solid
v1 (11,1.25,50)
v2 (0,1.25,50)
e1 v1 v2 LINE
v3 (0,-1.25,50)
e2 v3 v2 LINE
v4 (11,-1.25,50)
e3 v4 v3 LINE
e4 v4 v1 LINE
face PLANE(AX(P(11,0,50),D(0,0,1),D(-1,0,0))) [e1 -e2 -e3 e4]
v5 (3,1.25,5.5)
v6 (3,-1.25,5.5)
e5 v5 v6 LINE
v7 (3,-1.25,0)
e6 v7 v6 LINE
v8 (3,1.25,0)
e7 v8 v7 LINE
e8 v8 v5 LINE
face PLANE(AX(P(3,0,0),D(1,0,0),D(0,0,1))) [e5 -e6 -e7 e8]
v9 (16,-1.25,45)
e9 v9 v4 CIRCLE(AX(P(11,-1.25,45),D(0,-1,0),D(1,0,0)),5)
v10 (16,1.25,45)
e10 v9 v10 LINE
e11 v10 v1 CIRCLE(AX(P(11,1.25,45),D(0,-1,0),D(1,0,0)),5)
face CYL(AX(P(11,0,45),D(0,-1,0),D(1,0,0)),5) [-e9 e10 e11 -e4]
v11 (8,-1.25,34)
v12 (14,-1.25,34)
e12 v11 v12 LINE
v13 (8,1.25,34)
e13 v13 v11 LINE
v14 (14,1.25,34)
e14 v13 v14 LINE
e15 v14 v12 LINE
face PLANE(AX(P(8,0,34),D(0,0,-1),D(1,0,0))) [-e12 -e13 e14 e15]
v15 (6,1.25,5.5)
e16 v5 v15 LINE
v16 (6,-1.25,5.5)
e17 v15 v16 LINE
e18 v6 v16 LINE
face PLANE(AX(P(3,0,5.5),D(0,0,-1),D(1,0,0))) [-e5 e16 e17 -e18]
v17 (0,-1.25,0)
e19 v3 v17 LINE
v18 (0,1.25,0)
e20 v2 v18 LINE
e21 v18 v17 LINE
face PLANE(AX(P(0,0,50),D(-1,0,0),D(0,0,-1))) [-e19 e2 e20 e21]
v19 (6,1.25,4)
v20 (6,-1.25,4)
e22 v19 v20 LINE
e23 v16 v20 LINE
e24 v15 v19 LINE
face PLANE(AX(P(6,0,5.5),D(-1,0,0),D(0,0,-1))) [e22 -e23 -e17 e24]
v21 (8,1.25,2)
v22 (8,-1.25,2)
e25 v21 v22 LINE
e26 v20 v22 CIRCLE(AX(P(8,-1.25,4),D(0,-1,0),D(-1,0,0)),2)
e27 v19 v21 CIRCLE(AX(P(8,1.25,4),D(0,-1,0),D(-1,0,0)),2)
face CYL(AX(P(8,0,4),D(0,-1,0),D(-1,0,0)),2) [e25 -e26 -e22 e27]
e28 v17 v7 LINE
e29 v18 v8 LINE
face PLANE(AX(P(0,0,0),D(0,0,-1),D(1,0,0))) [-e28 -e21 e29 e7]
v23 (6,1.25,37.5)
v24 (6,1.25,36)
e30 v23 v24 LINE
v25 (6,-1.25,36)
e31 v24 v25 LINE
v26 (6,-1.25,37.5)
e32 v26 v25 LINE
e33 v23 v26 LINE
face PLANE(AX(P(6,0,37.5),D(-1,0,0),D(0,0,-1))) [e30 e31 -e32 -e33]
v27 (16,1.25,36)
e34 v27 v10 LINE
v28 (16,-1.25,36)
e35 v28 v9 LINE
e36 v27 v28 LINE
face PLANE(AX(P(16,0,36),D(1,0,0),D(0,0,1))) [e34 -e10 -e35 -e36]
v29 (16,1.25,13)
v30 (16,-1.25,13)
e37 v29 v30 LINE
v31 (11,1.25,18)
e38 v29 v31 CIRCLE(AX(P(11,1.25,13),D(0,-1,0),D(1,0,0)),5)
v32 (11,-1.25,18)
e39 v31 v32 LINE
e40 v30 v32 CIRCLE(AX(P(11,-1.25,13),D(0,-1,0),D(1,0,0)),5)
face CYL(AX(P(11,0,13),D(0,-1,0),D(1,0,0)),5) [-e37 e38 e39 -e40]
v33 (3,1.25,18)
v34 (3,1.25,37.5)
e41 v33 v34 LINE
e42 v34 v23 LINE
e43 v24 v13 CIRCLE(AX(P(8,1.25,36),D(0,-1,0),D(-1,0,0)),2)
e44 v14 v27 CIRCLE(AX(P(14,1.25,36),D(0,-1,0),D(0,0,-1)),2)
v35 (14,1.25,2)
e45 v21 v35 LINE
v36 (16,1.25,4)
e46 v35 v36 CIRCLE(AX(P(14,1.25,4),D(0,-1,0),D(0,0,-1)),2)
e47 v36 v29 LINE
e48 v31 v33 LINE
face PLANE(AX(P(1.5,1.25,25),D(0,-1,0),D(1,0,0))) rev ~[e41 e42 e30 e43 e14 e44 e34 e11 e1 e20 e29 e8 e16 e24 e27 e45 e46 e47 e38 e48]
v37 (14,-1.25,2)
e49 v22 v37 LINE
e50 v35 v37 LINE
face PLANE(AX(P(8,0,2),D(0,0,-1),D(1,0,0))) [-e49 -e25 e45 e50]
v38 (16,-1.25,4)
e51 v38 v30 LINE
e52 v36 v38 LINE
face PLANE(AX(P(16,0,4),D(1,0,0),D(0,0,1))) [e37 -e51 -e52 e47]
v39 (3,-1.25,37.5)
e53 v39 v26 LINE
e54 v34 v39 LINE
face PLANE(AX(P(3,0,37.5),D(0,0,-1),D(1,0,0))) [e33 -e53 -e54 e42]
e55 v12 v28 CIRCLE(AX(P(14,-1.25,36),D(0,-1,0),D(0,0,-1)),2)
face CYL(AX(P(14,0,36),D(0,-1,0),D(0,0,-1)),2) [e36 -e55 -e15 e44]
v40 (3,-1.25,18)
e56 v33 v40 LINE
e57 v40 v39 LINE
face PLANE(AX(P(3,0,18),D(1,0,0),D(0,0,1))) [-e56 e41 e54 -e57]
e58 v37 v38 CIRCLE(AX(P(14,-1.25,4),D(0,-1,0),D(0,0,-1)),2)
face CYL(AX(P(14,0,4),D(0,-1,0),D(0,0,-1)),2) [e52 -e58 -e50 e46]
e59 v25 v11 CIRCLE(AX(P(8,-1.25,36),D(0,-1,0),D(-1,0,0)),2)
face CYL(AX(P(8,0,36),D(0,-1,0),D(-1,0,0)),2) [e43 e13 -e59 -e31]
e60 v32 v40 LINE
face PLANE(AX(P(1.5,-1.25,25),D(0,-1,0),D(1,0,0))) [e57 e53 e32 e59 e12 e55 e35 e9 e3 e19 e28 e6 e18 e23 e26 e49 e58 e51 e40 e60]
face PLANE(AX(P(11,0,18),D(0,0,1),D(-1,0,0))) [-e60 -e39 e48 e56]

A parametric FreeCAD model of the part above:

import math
import FreeCAD as App
import Part
import Sketcher

V = App.Vector

doc = App.newDocument("Part")
body = doc.addObject("PartDesign::Body", "Body")

# Sketch on XZ plane
sketch1 = doc.addObject("Sketcher::SketchObject", "Sketch")
body.addObject(sketch1)
sketch1.AttachmentSupport = (doc.XZ_Plane, [""])
sketch1.MapMode = "FlatFace"
sketch1.addGeometry([
    Part.LineSegment(V(0, 50, 0), V(0, 0, 0)),  # 0
    Part.LineSegment(V(0, 0, 0), V(3, 0, 0)),  # 1
    Part.LineSegment(V(3, 0, 0), V(3, 5.5, 0)),  # 2
    Part.LineSegment(V(3, 5.5, 0), V(6, 5.5, 0)),  # 3
    Part.LineSegment(V(6, 5.5, 0), V(6, 4, 0)),  # 4
    Part.ArcOfCircle(Part.Circle(V(8, 4, 0), V(0, 0, 1), 2), math.radians(180), math.radians(270)),  # 5
    Part.LineSegment(V(8, 2, 0), V(14, 2, 0)),  # 6
    Part.ArcOfCircle(Part.Circle(V(14, 4, 0), V(0, 0, 1), 2), math.radians(-90), math.radians(0)),  # 7
    Part.LineSegment(V(16, 4, 0), V(16, 13, 0)),  # 8
    Part.ArcOfCircle(Part.Circle(V(11, 13, 0), V(0, 0, 1), 5), math.radians(0), math.radians(90)),  # 9
    Part.LineSegment(V(11, 18, 0), V(3, 18, 0)),  # 10
    Part.LineSegment(V(3, 18, 0), V(3, 37.5, 0)),  # 11
    Part.LineSegment(V(3, 37.5, 0), V(6, 37.5, 0)),  # 12
    Part.LineSegment(V(6, 37.5, 0), V(6, 36, 0)),  # 13
    Part.ArcOfCircle(Part.Circle(V(8, 36, 0), V(0, 0, 1), 2), math.radians(180), math.radians(270)),  # 14
    Part.LineSegment(V(8, 34, 0), V(14, 34, 0)),  # 15
    Part.ArcOfCircle(Part.Circle(V(14, 36, 0), V(0, 0, 1), 2), math.radians(-90), math.radians(0)),  # 16
    Part.LineSegment(V(16, 36, 0), V(16, 45, 0)),  # 17
    Part.ArcOfCircle(Part.Circle(V(11, 45, 0), V(0, 0, 1), 5), math.radians(0), math.radians(90)),  # 18
    Part.LineSegment(V(11, 50, 0), V(0, 50, 0)),  # 19
], False)
sketch1.addConstraint([
    Sketcher.Constraint("Coincident", 0, 2, 1, 1),
    Sketcher.Constraint("Coincident", 1, 2, 2, 1),
    Sketcher.Constraint("Coincident", 2, 2, 3, 1),
    Sketcher.Constraint("Coincident", 3, 2, 4, 1),
    Sketcher.Constraint("Tangent", 4, 2, 5, 1),
    Sketcher.Constraint("Tangent", 5, 2, 6, 1),
    Sketcher.Constraint("Tangent", 6, 2, 7, 1),
    Sketcher.Constraint("Tangent", 7, 2, 8, 1),
    Sketcher.Constraint("Tangent", 8, 2, 9, 1),
    Sketcher.Constraint("Tangent", 9, 2, 10, 1),
    Sketcher.Constraint("Coincident", 10, 2, 11, 1),
    Sketcher.Constraint("Coincident", 11, 2, 12, 1),
    Sketcher.Constraint("Coincident", 12, 2, 13, 1),
    Sketcher.Constraint("Tangent", 13, 2, 14, 1),
    Sketcher.Constraint("Tangent", 14, 2, 15, 1),
    Sketcher.Constraint("Tangent", 15, 2, 16, 1),
    Sketcher.Constraint("Tangent", 16, 2, 17, 1),
    Sketcher.Constraint("Tangent", 17, 2, 18, 1),
    Sketcher.Constraint("Tangent", 18, 2, 19, 1),
    Sketcher.Constraint("Coincident", 19, 2, 0, 1),
    Sketcher.Constraint("Vertical", 0),
    Sketcher.Constraint("Horizontal", 1),
    Sketcher.Constraint("Vertical", 2),
    Sketcher.Constraint("Horizontal", 3),
    Sketcher.Constraint("Vertical", 4),
    Sketcher.Constraint("Horizontal", 6),
    Sketcher.Constraint("Vertical", 8),
    Sketcher.Constraint("Horizontal", 10),
    Sketcher.Constraint("Vertical", 11),
    Sketcher.Constraint("Horizontal", 12),
    Sketcher.Constraint("Vertical", 13),
    Sketcher.Constraint("Horizontal", 15),
    Sketcher.Constraint("Vertical", 17),
    Sketcher.Constraint("Horizontal", 19),
    Sketcher.Constraint("Coincident", 0, 2, -1, 1),
    Sketcher.Constraint("Equal", 5, 7),
    Sketcher.Constraint("Equal", 7, 14),
    Sketcher.Constraint("Equal", 14, 16),
    Sketcher.Constraint("Equal", 9, 18),
    Sketcher.Constraint("Vertical", 5, 3, 14, 3),
    Sketcher.Constraint("Vertical", 7, 3, 16, 3),
    Sketcher.Constraint("Vertical", 2, 2, 10, 2),
    Sketcher.Constraint("Equal", 1, 3),
    Sketcher.Constraint("Equal", 4, 13),
    Sketcher.Constraint("Equal", 8, 17),
    Sketcher.Constraint("Radius", 5, 2.0),
    Sketcher.Constraint("Radius", 9, 5.0),
    Sketcher.Constraint("DistanceX", 1, 1, 1, 2, 3.0),
    Sketcher.Constraint("DistanceX", 6, 1, 6, 2, 6.0),
    Sketcher.Constraint("DistanceY", 0, 2, 0, 1, 50.0),
    Sketcher.Constraint("DistanceY", 8, 1, 8, 2, 9.0),
    Sketcher.Constraint("DistanceY", 2, 1, 2, 2, 5.5),
    Sketcher.Constraint("DistanceY", 4, 2, 4, 1, 1.5),
])
pad1 = doc.addObject("PartDesign::Pad", "Pad")
body.addObject(pad1)
pad1.Profile = sketch1
pad1.Length = 2.5
pad1.Midplane = True

doc.recompute()
